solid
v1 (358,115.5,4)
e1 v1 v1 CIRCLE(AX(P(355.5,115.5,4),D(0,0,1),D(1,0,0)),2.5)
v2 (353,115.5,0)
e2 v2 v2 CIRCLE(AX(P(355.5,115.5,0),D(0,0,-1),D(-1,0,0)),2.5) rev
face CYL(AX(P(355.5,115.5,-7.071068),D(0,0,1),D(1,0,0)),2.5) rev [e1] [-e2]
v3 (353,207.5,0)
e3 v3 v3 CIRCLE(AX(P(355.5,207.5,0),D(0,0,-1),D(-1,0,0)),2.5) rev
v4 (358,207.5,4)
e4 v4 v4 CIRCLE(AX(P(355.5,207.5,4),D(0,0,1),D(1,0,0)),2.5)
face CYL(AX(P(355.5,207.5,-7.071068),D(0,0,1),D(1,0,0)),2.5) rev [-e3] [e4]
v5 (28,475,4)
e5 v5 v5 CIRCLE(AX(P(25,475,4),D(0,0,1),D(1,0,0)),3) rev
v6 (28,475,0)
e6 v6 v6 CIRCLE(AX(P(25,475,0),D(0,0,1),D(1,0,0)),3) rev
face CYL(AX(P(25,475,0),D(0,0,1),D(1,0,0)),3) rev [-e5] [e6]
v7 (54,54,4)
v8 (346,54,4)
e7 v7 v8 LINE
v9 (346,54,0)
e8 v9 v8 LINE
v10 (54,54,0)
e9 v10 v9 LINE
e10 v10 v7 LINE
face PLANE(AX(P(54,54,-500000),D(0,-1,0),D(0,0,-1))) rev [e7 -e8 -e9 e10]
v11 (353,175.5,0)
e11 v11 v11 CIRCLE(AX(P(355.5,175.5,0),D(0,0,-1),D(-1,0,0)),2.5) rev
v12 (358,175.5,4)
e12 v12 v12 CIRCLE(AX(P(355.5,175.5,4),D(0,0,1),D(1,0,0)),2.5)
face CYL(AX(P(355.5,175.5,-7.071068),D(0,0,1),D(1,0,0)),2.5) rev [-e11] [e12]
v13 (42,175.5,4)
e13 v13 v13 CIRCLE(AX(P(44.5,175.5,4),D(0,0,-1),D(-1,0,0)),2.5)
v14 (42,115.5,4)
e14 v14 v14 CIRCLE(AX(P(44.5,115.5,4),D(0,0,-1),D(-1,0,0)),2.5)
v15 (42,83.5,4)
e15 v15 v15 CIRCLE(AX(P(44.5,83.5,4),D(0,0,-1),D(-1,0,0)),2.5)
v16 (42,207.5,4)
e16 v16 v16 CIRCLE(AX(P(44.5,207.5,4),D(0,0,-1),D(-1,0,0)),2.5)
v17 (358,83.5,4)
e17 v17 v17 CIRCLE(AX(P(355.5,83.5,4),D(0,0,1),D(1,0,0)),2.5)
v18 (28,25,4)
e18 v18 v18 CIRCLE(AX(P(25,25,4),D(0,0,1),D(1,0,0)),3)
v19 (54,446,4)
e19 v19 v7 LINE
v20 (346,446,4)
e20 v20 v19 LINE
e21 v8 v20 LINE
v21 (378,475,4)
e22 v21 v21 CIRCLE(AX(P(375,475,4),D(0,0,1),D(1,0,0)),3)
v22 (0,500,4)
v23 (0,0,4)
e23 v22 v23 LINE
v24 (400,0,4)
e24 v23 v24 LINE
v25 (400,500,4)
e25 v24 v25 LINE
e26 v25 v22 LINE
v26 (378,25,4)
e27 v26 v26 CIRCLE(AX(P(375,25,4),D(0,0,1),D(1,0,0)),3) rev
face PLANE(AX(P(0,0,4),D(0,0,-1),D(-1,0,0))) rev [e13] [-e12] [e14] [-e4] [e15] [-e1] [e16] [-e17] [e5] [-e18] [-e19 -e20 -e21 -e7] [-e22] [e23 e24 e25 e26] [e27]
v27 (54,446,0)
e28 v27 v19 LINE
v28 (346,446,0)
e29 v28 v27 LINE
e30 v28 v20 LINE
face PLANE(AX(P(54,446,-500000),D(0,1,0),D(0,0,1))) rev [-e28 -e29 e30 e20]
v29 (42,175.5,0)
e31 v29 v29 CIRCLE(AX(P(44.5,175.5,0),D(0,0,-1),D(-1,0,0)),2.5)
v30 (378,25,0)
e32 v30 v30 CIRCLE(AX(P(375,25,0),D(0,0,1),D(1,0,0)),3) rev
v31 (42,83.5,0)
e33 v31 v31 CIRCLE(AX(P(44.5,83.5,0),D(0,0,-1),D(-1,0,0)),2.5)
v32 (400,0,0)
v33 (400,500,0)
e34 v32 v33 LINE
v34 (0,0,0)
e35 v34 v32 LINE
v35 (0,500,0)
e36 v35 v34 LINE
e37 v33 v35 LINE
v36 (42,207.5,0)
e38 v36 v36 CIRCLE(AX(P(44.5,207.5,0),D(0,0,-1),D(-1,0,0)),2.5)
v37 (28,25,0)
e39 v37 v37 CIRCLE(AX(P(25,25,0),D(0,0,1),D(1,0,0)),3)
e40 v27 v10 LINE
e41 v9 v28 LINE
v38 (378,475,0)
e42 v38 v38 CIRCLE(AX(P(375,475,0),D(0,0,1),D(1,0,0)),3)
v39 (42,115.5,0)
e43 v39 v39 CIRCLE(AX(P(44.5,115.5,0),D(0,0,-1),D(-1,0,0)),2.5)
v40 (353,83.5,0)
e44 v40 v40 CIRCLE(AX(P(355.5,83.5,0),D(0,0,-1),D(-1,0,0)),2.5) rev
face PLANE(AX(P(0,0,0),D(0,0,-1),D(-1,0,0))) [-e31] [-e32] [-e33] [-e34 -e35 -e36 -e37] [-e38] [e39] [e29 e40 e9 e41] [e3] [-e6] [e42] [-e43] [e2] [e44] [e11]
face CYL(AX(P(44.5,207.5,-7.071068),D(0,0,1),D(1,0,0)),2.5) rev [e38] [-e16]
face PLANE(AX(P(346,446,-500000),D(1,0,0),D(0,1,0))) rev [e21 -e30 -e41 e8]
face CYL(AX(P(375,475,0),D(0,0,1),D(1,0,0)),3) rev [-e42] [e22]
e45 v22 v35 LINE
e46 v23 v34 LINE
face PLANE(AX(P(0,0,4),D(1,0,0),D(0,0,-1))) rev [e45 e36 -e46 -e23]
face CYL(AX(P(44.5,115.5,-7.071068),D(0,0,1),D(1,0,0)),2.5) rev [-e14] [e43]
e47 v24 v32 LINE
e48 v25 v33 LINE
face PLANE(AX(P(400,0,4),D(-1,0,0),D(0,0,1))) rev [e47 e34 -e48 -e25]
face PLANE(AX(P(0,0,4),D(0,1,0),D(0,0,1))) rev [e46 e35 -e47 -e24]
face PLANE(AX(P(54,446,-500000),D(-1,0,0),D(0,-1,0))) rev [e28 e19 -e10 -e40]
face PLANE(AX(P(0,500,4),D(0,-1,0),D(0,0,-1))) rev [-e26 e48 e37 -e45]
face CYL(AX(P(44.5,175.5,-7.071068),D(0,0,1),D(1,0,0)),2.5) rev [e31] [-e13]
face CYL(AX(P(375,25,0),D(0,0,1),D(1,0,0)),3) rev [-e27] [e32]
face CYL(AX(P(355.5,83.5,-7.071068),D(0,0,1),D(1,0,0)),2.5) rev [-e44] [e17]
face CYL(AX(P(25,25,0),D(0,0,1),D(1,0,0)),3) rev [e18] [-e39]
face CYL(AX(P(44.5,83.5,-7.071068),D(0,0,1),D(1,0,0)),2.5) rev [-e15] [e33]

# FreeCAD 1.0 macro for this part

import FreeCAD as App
import Part
import Sketcher
from FreeCAD import Vector


def add_polygon(sketch, points):
    """Adds a closed chain of lines whose ends are joined by coincident constraints."""
    first, n = sketch.GeometryCount, len(points)
    for a, b in zip(points, points[1:] + points[:1]):
        sketch.addGeometry(Part.LineSegment(App.Vector(*a, 0), App.Vector(*b, 0)), False)
    for i in range(n):
        sketch.addConstraint(Sketcher.Constraint("Coincident", first + i, 2, first + (i + 1) % n, 1))

doc = App.newDocument("Part")
body = doc.addObject("PartDesign::Body", "Body")

# Sketch on XY plane
sketch1 = body.newObject("Sketcher::SketchObject", "Sketch")
sketch1.AttachmentSupport = (doc.getObject("XY_Plane"), [""])
sketch1.MapMode = "FlatFace"
add_polygon(sketch1, [(0, 500), (0, 0), (400, 0), (400, 500)])  # lines 0-3
sketch1.addConstraint([
    Sketcher.Constraint("Vertical", 0),
    Sketcher.Constraint("Horizontal", 1),
    Sketcher.Constraint("Vertical", 2),
    Sketcher.Constraint("Horizontal", 3),
    Sketcher.Constraint("Coincident", 0, 2, -1, 1),
    Sketcher.Constraint("DistanceX", 1, 1, 1, 2, 400.0),
    Sketcher.Constraint("DistanceY", 0, 2, 0, 1, 500.0),
])
pad1 = body.newObject("PartDesign::Pad", "Pad")
pad1.Profile = sketch1
pad1.Length = 4

# Sketch on XY plane
sketch2 = body.newObject("Sketcher::SketchObject", "Sketch001")
sketch2.AttachmentSupport = (doc.getObject("XY_Plane"), [""])
sketch2.MapMode = "FlatFace"
sketch2.AttachmentOffset = App.Placement(Vector(0, 0, 4), App.Rotation())
add_polygon(sketch2, [(54, 446), (54, 54), (346, 54), (346, 446)])  # lines 0-3
sketch2.addConstraint([
    Sketcher.Constraint("Vertical", 0),
    Sketcher.Constraint("Horizontal", 1),
    Sketcher.Constraint("Vertical", 2),
    Sketcher.Constraint("Horizontal", 3),
    Sketcher.Constraint("DistanceX", 1, 1, 1, 2, 292.0),
    Sketcher.Constraint("DistanceY", 0, 2, 0, 1, 392.0),
    Sketcher.Constraint("DistanceX", -1, 1, 0, 2, 54.0),
    Sketcher.Constraint("DistanceY", -1, 1, 0, 2, 54.0),
])
pocket1 = body.newObject("PartDesign::Pocket", "Pocket")
pocket1.Profile = sketch2
pocket1.Type = "UpToFirst"

# Sketch on XY plane
sketch3 = body.newObject("Sketcher::SketchObject", "Sketch002")
sketch3.AttachmentSupport = (doc.getObject("XY_Plane"), [""])
sketch3.MapMode = "FlatFace"
sketch3.AttachmentOffset = App.Placement(Vector(0, 0, 4), App.Rotation())
sketch3.addGeometry([
    Part.Circle(Vector(355.5, 83.5, 0), Vector(0, 0, 1), 2.5),
    Part.Circle(Vector(355.5, 115.5, 0), Vector(0, 0, 1), 2.5),
    Part.Circle(Vector(355.5, 175.5, 0), Vector(0, 0, 1), 2.5),
    Part.Circle(Vector(355.5, 207.5, 0), Vector(0, 0, 1), 2.5),
], False)
sketch3.addConstraint([
    Sketcher.Constraint("Equal", 0, 1),
    Sketcher.Constraint("Equal", 1, 2),
    Sketcher.Constraint("Equal", 2, 3),
    Sketcher.Constraint("Vertical", 0, 3, 1, 3),
    Sketcher.Constraint("Vertical", 1, 3, 2, 3),
    Sketcher.Constraint("Vertical", 2, 3, 3, 3),
    Sketcher.Constraint("Diameter", 0, 5.0),
    Sketcher.Constraint("DistanceY", 0, 3, 1, 3, 32.0),
    Sketcher.Constraint("DistanceY", 1, 3, 2, 3, 60.0),
    Sketcher.Constraint("DistanceY", 2, 3, 3, 3, 32.0),
    Sketcher.Constraint("DistanceX", -1, 1, 0, 3, 355.5),
    Sketcher.Constraint("DistanceY", -1, 1, 0, 3, 83.5),
])
pocket2 = body.newObject("PartDesign::Pocket", "Pocket001")
pocket2.Profile = sketch3
pocket2.Length = 4
doc.recompute()

datumplane = body.newObject("PartDesign::Plane", "DatumPlane")
datumplane.AttachmentSupport = (doc.getObject("YZ_Plane"), [""])
datumplane.MapMode = "FlatFace"
datumplane.AttachmentOffset = App.Placement(Vector(0, 0, 200), App.Rotation())
mirrored = body.newObject("PartDesign::Mirrored", "Mirrored")
mirrored.Originals = [pocket2]
mirrored.MirrorPlane = (datumplane, [""])
body.Tip = mirrored

# Sketch on XY plane
sketch4 = body.newObject("Sketcher::SketchObject", "Sketch003")
sketch4.AttachmentSupport = (doc.getObject("XY_Plane"), [""])
sketch4.MapMode = "FlatFace"
sketch4.AttachmentOffset = App.Placement(Vector(0, 0, 4), App.Rotation())
sketch4.addGeometry([
    Part.Circle(Vector(375, 475, 0), Vector(0, 0, 1), 3),
    Part.Circle(Vector(25, 475, 0), Vector(0, 0, 1), 3),
    Part.Circle(Vector(25, 25, 0), Vector(0, 0, 1), 3),
    Part.Circle(Vector(375, 25, 0), Vector(0, 0, 1), 3),
], False)
sketch4.addConstraint([
    Sketcher.Constraint("Equal", 0, 1),
    Sketcher.Constraint("Equal", 1, 2),
    Sketcher.Constraint("Equal", 2, 3),
    Sketcher.Constraint("Horizontal", 0, 3, 1, 3),
    Sketcher.Constraint("Horizontal", 2, 3, 3, 3),
    Sketcher.Constraint("Vertical", 1, 3, 2, 3),
    Sketcher.Constraint("Vertical", 0, 3, 3, 3),
    Sketcher.Constraint("Diameter", 0, 6.0),
    Sketcher.Constraint("DistanceX", -1, 1, 0, 3, 375.0),
    Sketcher.Constraint("DistanceY", -1, 1, 0, 3, 475.0),
    Sketcher.Constraint("DistanceX", -1, 1, 1, 3, 25.0),
    Sketcher.Constraint("DistanceY", -1, 1, 2, 3, 25.0),
])
pocket3 = body.newObject("PartDesign::Pocket", "Pocket002")
pocket3.Profile = sketch4
pocket3.Length = 4

doc.recompute()
